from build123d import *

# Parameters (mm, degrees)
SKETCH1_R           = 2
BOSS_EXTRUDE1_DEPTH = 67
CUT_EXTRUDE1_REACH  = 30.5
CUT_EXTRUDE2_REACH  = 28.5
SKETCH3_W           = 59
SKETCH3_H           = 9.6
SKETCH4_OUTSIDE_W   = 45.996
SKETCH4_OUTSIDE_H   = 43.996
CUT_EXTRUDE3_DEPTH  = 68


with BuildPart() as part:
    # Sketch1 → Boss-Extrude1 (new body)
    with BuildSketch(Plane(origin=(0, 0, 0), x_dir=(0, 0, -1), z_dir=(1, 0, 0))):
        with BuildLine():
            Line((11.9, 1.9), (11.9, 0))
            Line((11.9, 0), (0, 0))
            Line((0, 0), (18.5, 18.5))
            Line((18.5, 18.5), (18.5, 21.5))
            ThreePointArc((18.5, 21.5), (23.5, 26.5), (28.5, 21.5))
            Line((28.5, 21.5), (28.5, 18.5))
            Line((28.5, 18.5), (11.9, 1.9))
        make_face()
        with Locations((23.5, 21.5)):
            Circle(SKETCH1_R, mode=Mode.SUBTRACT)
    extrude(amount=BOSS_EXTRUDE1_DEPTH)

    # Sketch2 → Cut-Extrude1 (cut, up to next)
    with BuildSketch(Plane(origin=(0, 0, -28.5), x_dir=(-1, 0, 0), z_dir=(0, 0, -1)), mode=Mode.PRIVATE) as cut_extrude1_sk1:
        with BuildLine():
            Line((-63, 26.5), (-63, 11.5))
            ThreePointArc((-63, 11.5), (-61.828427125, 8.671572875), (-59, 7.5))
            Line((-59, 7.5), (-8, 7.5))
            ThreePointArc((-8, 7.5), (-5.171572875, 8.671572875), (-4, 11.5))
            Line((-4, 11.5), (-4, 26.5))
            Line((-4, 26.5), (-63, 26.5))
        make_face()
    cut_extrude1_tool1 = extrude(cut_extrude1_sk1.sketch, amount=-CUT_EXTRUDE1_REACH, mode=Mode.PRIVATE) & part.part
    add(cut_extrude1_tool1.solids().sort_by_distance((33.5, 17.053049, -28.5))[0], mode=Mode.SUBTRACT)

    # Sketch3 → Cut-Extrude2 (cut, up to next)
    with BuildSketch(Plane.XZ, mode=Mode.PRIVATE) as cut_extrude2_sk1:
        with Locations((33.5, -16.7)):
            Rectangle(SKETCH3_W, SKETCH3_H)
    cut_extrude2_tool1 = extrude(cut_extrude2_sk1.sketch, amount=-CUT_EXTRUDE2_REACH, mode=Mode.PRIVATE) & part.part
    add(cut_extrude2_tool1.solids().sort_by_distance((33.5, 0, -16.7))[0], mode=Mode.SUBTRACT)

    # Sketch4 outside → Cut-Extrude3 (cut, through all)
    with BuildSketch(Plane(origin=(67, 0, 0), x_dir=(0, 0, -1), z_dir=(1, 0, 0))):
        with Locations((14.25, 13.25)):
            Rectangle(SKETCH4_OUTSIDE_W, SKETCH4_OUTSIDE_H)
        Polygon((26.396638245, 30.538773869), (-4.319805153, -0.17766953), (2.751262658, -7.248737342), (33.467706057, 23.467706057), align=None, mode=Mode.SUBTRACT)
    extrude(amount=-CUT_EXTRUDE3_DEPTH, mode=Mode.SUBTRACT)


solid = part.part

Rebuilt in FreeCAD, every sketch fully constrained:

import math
import FreeCAD as App
import Part
import Sketcher
from FreeCAD import Vector
Q = App.Units.Quantity


def add_polygon(sketch, points):
    """Adds a closed chain of lines whose ends are joined by coincident constraints."""
    first, n = sketch.GeometryCount, len(points)
    for a, b in zip(points, points[1:] + points[:1]):
        sketch.addGeometry(Part.LineSegment(App.Vector(*a, 0), App.Vector(*b, 0)), False)
    for i in range(n):
        sketch.addConstraint(Sketcher.Constraint("Coincident", first + i, 2, first + (i + 1) % n, 1))

doc = App.newDocument("Part")
params = doc.addObject("Spreadsheet::Sheet", "Params")
for row, (alias, value) in enumerate([
    ("sketch1_diameter", "4 mm"),
    ("sketch1_radius", "5 mm"),
    ("sketch1_width", "3 mm"),
    ("sketch1_width2", "1.9 mm"),
    ("pad1_length", "67 mm"),
    ("sketch2_radius", "4 mm"),
    ("sketch2_width", "51 mm"),
    ("sketch2_height", "15 mm"),
    ("pocket1_length", "21 mm"),
    ("sketch3_width", "59 mm"),
    ("sketch3_height", "9.6 mm"),
    ("pocket2_length", "11.5 mm"),
    ("sketch4_length", "10 mm"),
], start=1):
    params.set(f"A{row}", alias)
    params.set(f"B{row}", "=" + value)
    params.setAlias(f"B{row}", alias)

body = doc.addObject("PartDesign::Body", "Body")

sketch1 = doc.addObject("Sketcher::SketchObject", "Sketch")
body.addObject(sketch1)
sketch1.AttachmentSupport = (doc.YZ_Plane, [""])
sketch1.MapMode = "FlatFace"
sketch1.addGeometry([
    Part.LineSegment(Vector(0, -11.9, 0), Vector(1.9, -11.9, 0)),
    Part.LineSegment(Vector(1.9, -11.9, 0), Vector(18.5, -28.5, 0)),
    Part.LineSegment(Vector(18.5, -28.5, 0), Vector(21.5, -28.5, 0)),
    Part.ArcOfCircle(Part.Circle(Vector(21.5, -23.5, 0), Vector(0, 0, 1), 5), math.radians(-90), math.radians(90)),
    Part.LineSegment(Vector(21.5, -18.5, 0), Vector(18.5, -18.5, 0)),
    Part.LineSegment(Vector(18.5, -18.5, 0), Vector(0, 0, 0)),
    Part.LineSegment(Vector(0, 0, 0), Vector(0, -11.9, 0)),
    Part.Circle(Vector(21.5, -23.5, 0), Vector(0, 0, 1), 2),
], False)
sketch1.addConstraint([
    Sketcher.Constraint("Coincident", 0, 2, 1, 1),
    Sketcher.Constraint("Coincident", 1, 2, 2, 1),
    Sketcher.Constraint("Tangent", 2, 2, 3, 1),
    Sketcher.Constraint("Tangent", 3, 2, 4, 1),
    Sketcher.Constraint("Coincident", 4, 2, 5, 1),
    Sketcher.Constraint("Coincident", 5, 2, 6, 1),
    Sketcher.Constraint("Coincident", 6, 2, 0, 1),
    Sketcher.Constraint("Horizontal", 0),
    Sketcher.Constraint("Horizontal", 2),
    Sketcher.Constraint("Horizontal", 4),
    Sketcher.Constraint("Vertical", 6),
    Sketcher.Constraint("Coincident", 5, 2, -1, 1),
    Sketcher.Constraint("Coincident", 7, 3, 3, 3),
    Sketcher.Constraint("Parallel", 1, 5),
    Sketcher.Constraint("Vertical", 1, 2, 4, 2),
    Sketcher.Constraint("Diameter", 7, Q("4 mm")),
    Sketcher.Constraint("Radius", 3, Q("5 mm")),
    Sketcher.Constraint("DistanceX", 2, 1, 2, 2, Q("3 mm")),
    Sketcher.Constraint("Angle", 1, Q("-45 deg")),
    Sketcher.Constraint("DistanceX", 0, 1, 0, 2, Q("1.9 mm")),
    Sketcher.Constraint("DistanceX", -1, 1, 3, 3, Q("21.5 mm")),
])
sketch1.setExpression("Constraints[15]", "Params.sketch1_diameter")
sketch1.setExpression("Constraints[16]", "Params.sketch1_radius")
sketch1.setExpression("Constraints[17]", "Params.sketch1_width")
sketch1.setExpression("Constraints[19]", "Params.sketch1_width2")
pad1 = doc.addObject("PartDesign::Pad", "Pad")
body.addObject(pad1)
pad1.Profile = sketch1
pad1.setExpression("Length", "Params.pad1_length")

sketch2 = doc.addObject("Sketcher::SketchObject", "Sketch001")
body.addObject(sketch2)
sketch2.AttachmentSupport = (doc.XY_Plane, [""])
sketch2.MapMode = "FlatFace"
sketch2.AttachmentOffset = App.Placement(Vector(0, 0, -28.5), App.Rotation())
sketch2.addGeometry([
    Part.LineSegment(Vector(63, 26.5, 0), Vector(63, 11.5, 0)),
    Part.ArcOfCircle(Part.Circle(Vector(59, 11.5, 0), Vector(0, 0, 1), 4), math.radians(-90), math.radians(0)),
    Part.LineSegment(Vector(59, 7.5, 0), Vector(8, 7.5, 0)),
    Part.ArcOfCircle(Part.Circle(Vector(8, 11.5, 0), Vector(0, 0, 1), 4), math.radians(180), math.radians(270)),
    Part.LineSegment(Vector(4, 11.5, 0), Vector(4, 26.5, 0)),
    Part.LineSegment(Vector(4, 26.5, 0), Vector(63, 26.5, 0)),
], False)
sketch2.addConstraint([
    Sketcher.Constraint("Tangent", 0, 2, 1, 2),
    Sketcher.Constraint("Tangent", 1, 1, 2, 1),
    Sketcher.Constraint("Tangent", 2, 2, 3, 2),
    Sketcher.Constraint("Tangent", 3, 1, 4, 1),
    Sketcher.Constraint("Coincident", 4, 2, 5, 1),
    Sketcher.Constraint("Coincident", 5, 2, 0, 1),
    Sketcher.Constraint("Vertical", 0),
    Sketcher.Constraint("Horizontal", 2),
    Sketcher.Constraint("Vertical", 4),
    Sketcher.Constraint("Horizontal", 5),
    Sketcher.Constraint("Equal", 1, 3),
    Sketcher.Constraint("Radius", 1, Q("4 mm")),
    Sketcher.Constraint("DistanceX", 2, 2, 2, 1, Q("51 mm")),
    Sketcher.Constraint("DistanceY", 0, 2, 0, 1, Q("15 mm")),
    Sketcher.Constraint("DistanceX", -1, 1, 1, 3, Q("59 mm")),
    Sketcher.Constraint("DistanceY", -1, 1, 1, 3, Q("11.5 mm")),
])
sketch2.setExpression("Constraints[11]", "Params.sketch2_radius")
sketch2.setExpression("Constraints[12]", "Params.sketch2_width")
sketch2.setExpression("Constraints[13]", "Params.sketch2_height")
pocket1 = doc.addObject("PartDesign::Pocket", "Pocket")
body.addObject(pocket1)
pocket1.Profile = sketch2
pocket1.setExpression("Length", "Params.pocket1_length")
pocket1.Reversed = True

sketch3 = doc.addObject("Sketcher::SketchObject", "Sketch002")
body.addObject(sketch3)
sketch3.AttachmentSupport = (doc.XZ_Plane, [""])
sketch3.MapMode = "FlatFace"
add_polygon(sketch3, [(4, -12), (4, -22), (63, -22), (63, -12)])
sketch3.addConstraint([
    Sketcher.Constraint("Vertical", 0),
    Sketcher.Constraint("Horizontal", 1),
    Sketcher.Constraint("Vertical", 2),
    Sketcher.Constraint("Horizontal", 3),
    Sketcher.Constraint("DistanceX", 1, 1, 1, 2, Q("59 mm")),
    Sketcher.Constraint("DistanceY", 0, 2, 0, 1, Q("9.6 mm")),
    Sketcher.Constraint("DistanceX", -1, 1, 0, 2, Q("4 mm")),
    Sketcher.Constraint("DistanceY", 0, 2, -1, 1, Q("21.5 mm")),
])
sketch3.setExpression("Constraints[8]", "Params.sketch3_width")
sketch3.setExpression("Constraints[9]", "Params.sketch3_height")
pocket2 = doc.addObject("PartDesign::Pocket", "Pocket001")
body.addObject(pocket2)
pocket2.Profile = sketch3
pocket2.setExpression("Length", "Params.pocket2_length")

sketch4 = doc.addObject("Sketcher::SketchObject", "Sketch003")
body.addObject(sketch4)
sketch4.AttachmentSupport = (doc.YZ_Plane, [""])
sketch4.MapMode = "FlatFace"
sketch4.AttachmentOffset = App.Placement(Vector(0, 0, 67), App.Rotation())
add_polygon(sketch4, [(35, 9), (-9, 9), (-9, -37), (35, -37)])
add_polygon(sketch4, [(0, 4), (31, -26), (23, -33), (-7, -3)])
sketch4.addConstraint([
    Sketcher.Constraint("Horizontal", 0),
    Sketcher.Constraint("Vertical", 1),
    Sketcher.Constraint("Horizontal", 2),
    Sketcher.Constraint("Vertical", 3),
    Sketcher.Constraint("Perpendicular", 4, 5),
    Sketcher.Constraint("Perpendicular", 5, 6),
    Sketcher.Constraint("Perpendicular", 6, 7),
    Sketcher.Constraint("Angle", 4, Q("-45 deg")),
    Sketcher.Constraint("Distance", 5, Q("10 mm")),
    Sketcher.Constraint("DistanceX", 0, 2, 0, 1, Q("43.996 mm")),
    Sketcher.Constraint("DistanceY", 1, 2, 1, 1, Q("45.996 mm")),
    Sketcher.Constraint("DistanceX", 0, 2, -1, 1, Q("8.748 mm")),
    Sketcher.Constraint("DistanceY", -1, 1, 0, 2, Q("8.748 mm")),
    Sketcher.Constraint("Distance", 4, Q("43.439611 mm")),
    Sketcher.Constraint("DistanceY", 4, 2, -1, 1, Q("26.396638 mm")),
    Sketcher.Constraint("DistanceX", 7, 2, -1, 1, Q("0.17767 mm")),
])
sketch4.setExpression("Constraints[16]", "Params.sketch4_length")
pocket3 = doc.addObject("PartDesign::Pocket", "Pocket002")
body.addObject(pocket3)
pocket3.Profile = sketch4
pocket3.Type = "ThroughAll"

doc.recompute()
